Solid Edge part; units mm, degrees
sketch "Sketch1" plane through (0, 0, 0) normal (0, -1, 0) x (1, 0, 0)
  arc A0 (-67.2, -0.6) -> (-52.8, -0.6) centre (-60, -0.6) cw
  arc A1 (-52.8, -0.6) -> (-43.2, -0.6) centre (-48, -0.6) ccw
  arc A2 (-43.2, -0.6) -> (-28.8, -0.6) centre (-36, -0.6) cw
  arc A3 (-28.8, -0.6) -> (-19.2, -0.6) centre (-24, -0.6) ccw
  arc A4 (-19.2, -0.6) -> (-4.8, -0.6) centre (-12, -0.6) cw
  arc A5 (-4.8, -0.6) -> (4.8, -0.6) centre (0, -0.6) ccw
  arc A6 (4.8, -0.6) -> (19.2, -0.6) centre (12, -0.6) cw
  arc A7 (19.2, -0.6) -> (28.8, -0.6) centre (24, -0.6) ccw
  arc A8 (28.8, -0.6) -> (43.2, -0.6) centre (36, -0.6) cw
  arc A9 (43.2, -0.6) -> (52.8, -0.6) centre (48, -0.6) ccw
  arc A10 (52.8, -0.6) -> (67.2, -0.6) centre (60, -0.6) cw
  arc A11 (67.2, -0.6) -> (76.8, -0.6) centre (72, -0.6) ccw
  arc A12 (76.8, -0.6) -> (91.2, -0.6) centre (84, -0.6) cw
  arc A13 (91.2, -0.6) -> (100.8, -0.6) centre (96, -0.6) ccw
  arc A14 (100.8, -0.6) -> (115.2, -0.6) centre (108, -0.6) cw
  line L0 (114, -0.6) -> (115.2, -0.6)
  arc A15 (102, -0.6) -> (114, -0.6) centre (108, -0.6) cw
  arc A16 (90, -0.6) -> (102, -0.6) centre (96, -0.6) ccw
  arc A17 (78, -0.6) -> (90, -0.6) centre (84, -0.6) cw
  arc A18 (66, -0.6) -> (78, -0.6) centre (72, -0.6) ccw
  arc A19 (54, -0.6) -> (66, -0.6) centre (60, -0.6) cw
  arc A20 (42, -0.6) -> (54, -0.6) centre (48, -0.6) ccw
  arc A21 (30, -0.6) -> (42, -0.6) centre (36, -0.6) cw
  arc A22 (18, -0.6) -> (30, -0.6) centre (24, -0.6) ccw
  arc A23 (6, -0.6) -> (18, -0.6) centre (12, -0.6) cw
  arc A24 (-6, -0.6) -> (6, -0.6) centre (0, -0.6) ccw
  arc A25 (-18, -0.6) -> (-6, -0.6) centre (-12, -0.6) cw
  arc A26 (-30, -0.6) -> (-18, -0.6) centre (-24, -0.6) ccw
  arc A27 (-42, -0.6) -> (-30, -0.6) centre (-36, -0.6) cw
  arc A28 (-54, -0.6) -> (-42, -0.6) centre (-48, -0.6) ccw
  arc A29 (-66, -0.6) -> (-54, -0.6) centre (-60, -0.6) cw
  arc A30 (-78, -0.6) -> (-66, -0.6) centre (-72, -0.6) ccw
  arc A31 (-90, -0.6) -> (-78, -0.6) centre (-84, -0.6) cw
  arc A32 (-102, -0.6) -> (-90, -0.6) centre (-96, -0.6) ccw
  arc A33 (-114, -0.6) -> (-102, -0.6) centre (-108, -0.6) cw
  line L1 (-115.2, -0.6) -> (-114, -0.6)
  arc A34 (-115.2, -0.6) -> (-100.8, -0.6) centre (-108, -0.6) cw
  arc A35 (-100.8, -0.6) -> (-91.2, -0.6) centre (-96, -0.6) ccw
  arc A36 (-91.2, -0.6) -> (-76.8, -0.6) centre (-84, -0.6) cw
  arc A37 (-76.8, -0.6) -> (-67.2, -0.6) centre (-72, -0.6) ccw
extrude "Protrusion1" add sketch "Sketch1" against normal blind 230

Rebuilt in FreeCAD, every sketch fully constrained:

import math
import FreeCAD as App
import Part
import Sketcher
from FreeCAD import Vector
Q = App.Units.Quantity

doc = App.newDocument("Part")
body = doc.addObject("PartDesign::Body", "Body")

# Sketch on XZ plane
sketch1 = body.newObject("Sketcher::SketchObject", "Sketch")
sketch1.AttachmentSupport = (doc.getObject("XZ_Plane"), [""])
sketch1.MapMode = "FlatFace"
sketch1.addGeometry(Part.ArcOfCircle(Part.Circle(Vector(-60, -0.6, 0), Vector(0, 0, 1), 7.2), math.radians(0), math.radians(180)), False)
sketch1.addGeometry(Part.ArcOfCircle(Part.Circle(Vector(-72, -0.6, 0), Vector(0, 0, 1), 4.8), math.radians(180), math.radians(360)), False)
sketch1.addGeometry(Part.ArcOfCircle(Part.Circle(Vector(-84, -0.6, 0), Vector(0, 0, 1), 7.2), math.radians(0), math.radians(180)), False)
sketch1.addGeometry(Part.ArcOfCircle(Part.Circle(Vector(-96, -0.6, 0), Vector(0, 0, 1), 4.8), math.radians(180), math.radians(360)), False)
sketch1.addGeometry(Part.ArcOfCircle(Part.Circle(Vector(-108, -0.6, 0), Vector(0, 0, 1), 7.2), math.radians(0), math.radians(180)), False)
sketch1.addGeometry(Part.LineSegment(Vector(-115.2, -0.6, 0), Vector(-114, -0.6, 0)), False)
sketch1.addGeometry(Part.ArcOfCircle(Part.Circle(Vector(-108, -0.6, 0), Vector(0, 0, 1), 6), math.radians(0), math.radians(180)), False)
sketch1.addGeometry(Part.ArcOfCircle(Part.Circle(Vector(-96, -0.6, 0), Vector(0, 0, 1), 6), math.radians(180), math.radians(360)), False)
sketch1.addGeometry(Part.ArcOfCircle(Part.Circle(Vector(-84, -0.6, 0), Vector(0, 0, 1), 6), math.radians(0), math.radians(180)), False)
sketch1.addGeometry(Part.ArcOfCircle(Part.Circle(Vector(-72, -0.6, 0), Vector(0, 0, 1), 6), math.radians(180), math.radians(360)), False)
sketch1.addGeometry(Part.ArcOfCircle(Part.Circle(Vector(-60, -0.6, 0), Vector(0, 0, 1), 6), math.radians(0), math.radians(180)), False)
sketch1.addGeometry(Part.ArcOfCircle(Part.Circle(Vector(-48, -0.6, 0), Vector(0, 0, 1), 6), math.radians(180), math.radians(360)), False)
sketch1.addGeometry(Part.ArcOfCircle(Part.Circle(Vector(-36, -0.6, 0), Vector(0, 0, 1), 6), math.radians(0), math.radians(180)), False)
sketch1.addGeometry(Part.ArcOfCircle(Part.Circle(Vector(-24, -0.6, 0), Vector(0, 0, 1), 6), math.radians(180), math.radians(360)), False)
sketch1.addGeometry(Part.ArcOfCircle(Part.Circle(Vector(-12, -0.6, 0), Vector(0, 0, 1), 6), math.radians(0), math.radians(180)), False)
sketch1.addGeometry(Part.ArcOfCircle(Part.Circle(Vector(0, -0.6, 0), Vector(0, 0, 1), 6), math.radians(180), math.radians(360)), False)
sketch1.addGeometry(Part.ArcOfCircle(Part.Circle(Vector(12, -0.6, 0), Vector(0, 0, 1), 6), math.radians(0), math.radians(180)), False)
sketch1.addGeometry(Part.ArcOfCircle(Part.Circle(Vector(24, -0.6, 0), Vector(0, 0, 1), 6), math.radians(180), math.radians(360)), False)
sketch1.addGeometry(Part.ArcOfCircle(Part.Circle(Vector(36, -0.6, 0), Vector(0, 0, 1), 6), math.radians(0), math.radians(180)), False)
sketch1.addGeometry(Part.ArcOfCircle(Part.Circle(Vector(48, -0.6, 0), Vector(0, 0, 1), 6), math.radians(180), math.radians(360)), False)
sketch1.addGeometry(Part.ArcOfCircle(Part.Circle(Vector(60, -0.6, 0), Vector(0, 0, 1), 6), math.radians(0), math.radians(180)), False)
sketch1.addGeometry(Part.ArcOfCircle(Part.Circle(Vector(72, -0.6, 0), Vector(0, 0, 1), 6), math.radians(180), math.radians(360)), False)
sketch1.addGeometry(Part.ArcOfCircle(Part.Circle(Vector(84, -0.6, 0), Vector(0, 0, 1), 6), math.radians(0), math.radians(180)), False)
sketch1.addGeometry(Part.ArcOfCircle(Part.Circle(Vector(96, -0.6, 0), Vector(0, 0, 1), 6), math.radians(180), math.radians(360)), False)
sketch1.addGeometry(Part.ArcOfCircle(Part.Circle(Vector(108, -0.6, 0), Vector(0, 0, 1), 6), math.radians(0), math.radians(180)), False)
sketch1.addGeometry(Part.LineSegment(Vector(114, -0.6, 0), Vector(115.2, -0.6, 0)), False)
sketch1.addGeometry(Part.ArcOfCircle(Part.Circle(Vector(108, -0.6, 0), Vector(0, 0, 1), 7.2), math.radians(0), math.radians(180)), False)
sketch1.addGeometry(Part.ArcOfCircle(Part.Circle(Vector(96, -0.6, 0), Vector(0, 0, 1), 4.8), math.radians(180), math.radians(360)), False)
sketch1.addGeometry(Part.ArcOfCircle(Part.Circle(Vector(84, -0.6, 0), Vector(0, 0, 1), 7.2), math.radians(0), math.radians(180)), False)
sketch1.addGeometry(Part.ArcOfCircle(Part.Circle(Vector(72, -0.6, 0), Vector(0, 0, 1), 4.8), math.radians(180), math.radians(360)), False)
sketch1.addGeometry(Part.ArcOfCircle(Part.Circle(Vector(60, -0.6, 0), Vector(0, 0, 1), 7.2), math.radians(0), math.radians(180)), False)
sketch1.addGeometry(Part.ArcOfCircle(Part.Circle(Vector(48, -0.6, 0), Vector(0, 0, 1), 4.8), math.radians(180), math.radians(360)), False)
sketch1.addGeometry(Part.ArcOfCircle(Part.Circle(Vector(36, -0.6, 0), Vector(0, 0, 1), 7.2), math.radians(0), math.radians(180)), False)
sketch1.addGeometry(Part.ArcOfCircle(Part.Circle(Vector(24, -0.6, 0), Vector(0, 0, 1), 4.8), math.radians(180), math.radians(360)), False)
sketch1.addGeometry(Part.ArcOfCircle(Part.Circle(Vector(12, -0.6, 0), Vector(0, 0, 1), 7.2), math.radians(0), math.radians(180)), False)
sketch1.addGeometry(Part.ArcOfCircle(Part.Circle(Vector(0, -0.6, 0), Vector(0, 0, 1), 4.8), math.radians(180), math.radians(360)), False)
sketch1.addGeometry(Part.ArcOfCircle(Part.Circle(Vector(-12, -0.6, 0), Vector(0, 0, 1), 7.2), math.radians(0), math.radians(180)), False)
sketch1.addGeometry(Part.ArcOfCircle(Part.Circle(Vector(-24, -0.6, 0), Vector(0, 0, 1), 4.8), math.radians(180), math.radians(360)), False)
sketch1.addGeometry(Part.ArcOfCircle(Part.Circle(Vector(-36, -0.6, 0), Vector(0, 0, 1), 7.2), math.radians(0), math.radians(180)), False)
sketch1.addGeometry(Part.ArcOfCircle(Part.Circle(Vector(-48, -0.6, 0), Vector(0, 0, 1), 4.8), math.radians(180), math.radians(360)), False)
sketch1.addConstraint(Sketcher.Constraint("Tangent", 0, 2, 1, 2))
sketch1.addConstraint(Sketcher.Constraint("Tangent", 1, 1, 2, 1))
sketch1.addConstraint(Sketcher.Constraint("Tangent", 2, 2, 3, 2))
sketch1.addConstraint(Sketcher.Constraint("Tangent", 3, 1, 4, 1))
sketch1.addConstraint(Sketcher.Constraint("Coincident", 4, 2, 5, 1))
sketch1.addConstraint(Sketcher.Constraint("Coincident", 5, 2, 6, 2))
sketch1.addConstraint(Sketcher.Constraint("Tangent", 6, 1, 7, 1))
sketch1.addConstraint(Sketcher.Constraint("Tangent", 7, 2, 8, 2))
sketch1.addConstraint(Sketcher.Constraint("Tangent", 8, 1, 9, 1))
sketch1.addConstraint(Sketcher.Constraint("Tangent", 9, 2, 10, 2))
sketch1.addConstraint(Sketcher.Constraint("Tangent", 10, 1, 11, 1))
sketch1.addConstraint(Sketcher.Constraint("Tangent", 11, 2, 12, 2))
sketch1.addConstraint(Sketcher.Constraint("Tangent", 12, 1, 13, 1))
sketch1.addConstraint(Sketcher.Constraint("Tangent", 13, 2, 14, 2))
sketch1.addConstraint(Sketcher.Constraint("Tangent", 14, 1, 15, 1))
sketch1.addConstraint(Sketcher.Constraint("Tangent", 15, 2, 16, 2))
sketch1.addConstraint(Sketcher.Constraint("Tangent", 16, 1, 17, 1))
sketch1.addConstraint(Sketcher.Constraint("Tangent", 17, 2, 18, 2))
sketch1.addConstraint(Sketcher.Constraint("Tangent", 18, 1, 19, 1))
sketch1.addConstraint(Sketcher.Constraint("Tangent", 19, 2, 20, 2))
sketch1.addConstraint(Sketcher.Constraint("Tangent", 20, 1, 21, 1))
sketch1.addConstraint(Sketcher.Constraint("Tangent", 21, 2, 22, 2))
sketch1.addConstraint(Sketcher.Constraint("Tangent", 22, 1, 23, 1))
sketch1.addConstraint(Sketcher.Constraint("Tangent", 23, 2, 24, 2))
sketch1.addConstraint(Sketcher.Constraint("Coincident", 24, 1, 25, 1))
sketch1.addConstraint(Sketcher.Constraint("Coincident", 25, 2, 26, 1))
sketch1.addConstraint(Sketcher.Constraint("Tangent", 26, 2, 27, 2))
sketch1.addConstraint(Sketcher.Constraint("Tangent", 27, 1, 28, 1))
sketch1.addConstraint(Sketcher.Constraint("Tangent", 28, 2, 29, 2))
sketch1.addConstraint(Sketcher.Constraint("Tangent", 29, 1, 30, 1))
sketch1.addConstraint(Sketcher.Constraint("Tangent", 30, 2, 31, 2))
sketch1.addConstraint(Sketcher.Constraint("Tangent", 31, 1, 32, 1))
sketch1.addConstraint(Sketcher.Constraint("Tangent", 32, 2, 33, 2))
sketch1.addConstraint(Sketcher.Constraint("Tangent", 33, 1, 34, 1))
sketch1.addConstraint(Sketcher.Constraint("Tangent", 34, 2, 35, 2))
sketch1.addConstraint(Sketcher.Constraint("Tangent", 35, 1, 36, 1))
sketch1.addConstraint(Sketcher.Constraint("Tangent", 36, 2, 37, 2))
sketch1.addConstraint(Sketcher.Constraint("Tangent", 37, 1, 38, 1))
sketch1.addConstraint(Sketcher.Constraint("Tangent", 38, 2, 39, 2))
sketch1.addConstraint(Sketcher.Constraint("Tangent", 39, 1, 0, 1))
sketch1.addConstraint(Sketcher.Constraint("Horizontal", 5))
sketch1.addConstraint(Sketcher.Constraint("Horizontal", 25))
sketch1.addConstraint(Sketcher.Constraint("Coincident", 6, 3, 4, 3))
sketch1.addConstraint(Sketcher.Constraint("Coincident", 7, 3, 3, 3))
sketch1.addConstraint(Sketcher.Constraint("Coincident", 8, 3, 2, 3))
sketch1.addConstraint(Sketcher.Constraint("Coincident", 9, 3, 1, 3))
sketch1.addConstraint(Sketcher.Constraint("Coincident", 10, 3, 0, 3))
sketch1.addConstraint(Sketcher.Constraint("Coincident", 26, 3, 24, 3))
sketch1.addConstraint(Sketcher.Constraint("Coincident", 27, 3, 23, 3))
sketch1.addConstraint(Sketcher.Constraint("Coincident", 28, 3, 22, 3))
sketch1.addConstraint(Sketcher.Constraint("Coincident", 29, 3, 21, 3))
sketch1.addConstraint(Sketcher.Constraint("Coincident", 30, 3, 20, 3))
sketch1.addConstraint(Sketcher.Constraint("Coincident", 31, 3, 19, 3))
sketch1.addConstraint(Sketcher.Constraint("Coincident", 32, 3, 18, 3))
sketch1.addConstraint(Sketcher.Constraint("Coincident", 33, 3, 17, 3))
sketch1.addConstraint(Sketcher.Constraint("Coincident", 34, 3, 16, 3))
sketch1.addConstraint(Sketcher.Constraint("Coincident", 35, 3, 15, 3))
sketch1.addConstraint(Sketcher.Constraint("Coincident", 36, 3, 14, 3))
sketch1.addConstraint(Sketcher.Constraint("Coincident", 37, 3, 13, 3))
sketch1.addConstraint(Sketcher.Constraint("Coincident", 38, 3, 12, 3))
sketch1.addConstraint(Sketcher.Constraint("Coincident", 39, 3, 11, 3))
sketch1.addConstraint(Sketcher.Constraint("Equal", 0, 2))
sketch1.addConstraint(Sketcher.Constraint("Equal", 1, 3))
sketch1.addConstraint(Sketcher.Constraint("Equal", 2, 4))
sketch1.addConstraint(Sketcher.Constraint("Equal", 6, 7))
sketch1.addConstraint(Sketcher.Constraint("Equal", 10, 11))
sketch1.addConstraint(Sketcher.Constraint("Equal", 11, 12))
sketch1.addConstraint(Sketcher.Constraint("Equal", 12, 13))
sketch1.addConstraint(Sketcher.Constraint("Equal", 13, 14))
sketch1.addConstraint(Sketcher.Constraint("Equal", 14, 15))
sketch1.addConstraint(Sketcher.Constraint("Equal", 15, 16))
sketch1.addConstraint(Sketcher.Constraint("Equal", 16, 17))
sketch1.addConstraint(Sketcher.Constraint("Equal", 17, 18))
sketch1.addConstraint(Sketcher.Constraint("Equal", 18, 19))
sketch1.addConstraint(Sketcher.Constraint("Equal", 19, 20))
sketch1.addConstraint(Sketcher.Constraint("Equal", 20, 21))
sketch1.addConstraint(Sketcher.Constraint("Equal", 21, 22))
sketch1.addConstraint(Sketcher.Constraint("Equal", 22, 23))
sketch1.addConstraint(Sketcher.Constraint("Equal", 23, 24))
sketch1.addConstraint(Sketcher.Constraint("Symmetric", 14, 3, 16, 3, -2))
sketch1.addConstraint(Sketcher.Constraint("Horizontal", 0, 3, 1, 3))
sketch1.addConstraint(Sketcher.Constraint("Horizontal", 1, 3, 2, 3))
sketch1.addConstraint(Sketcher.Constraint("Horizontal", 2, 3, 3, 3))
sketch1.addConstraint(Sketcher.Constraint("Horizontal", 3, 3, 4, 3))
sketch1.addConstraint(Sketcher.Constraint("Horizontal", 10, 3, 11, 3))
sketch1.addConstraint(Sketcher.Constraint("Horizontal", 11, 3, 12, 3))
sketch1.addConstraint(Sketcher.Constraint("Horizontal", 12, 3, 13, 3))
sketch1.addConstraint(Sketcher.Constraint("Horizontal", 13, 3, 14, 3))
sketch1.addConstraint(Sketcher.Constraint("Horizontal", 14, 3, 15, 3))
sketch1.addConstraint(Sketcher.Constraint("Horizontal", 16, 3, 17, 3))
sketch1.addConstraint(Sketcher.Constraint("Horizontal", 17, 3, 18, 3))
sketch1.addConstraint(Sketcher.Constraint("Horizontal", 18, 3, 19, 3))
sketch1.addConstraint(Sketcher.Constraint("Horizontal", 19, 3, 20, 3))
sketch1.addConstraint(Sketcher.Constraint("Horizontal", 20, 3, 21, 3))
sketch1.addConstraint(Sketcher.Constraint("Horizontal", 21, 3, 22, 3))
sketch1.addConstraint(Sketcher.Constraint("Horizontal", 22, 3, 23, 3))
sketch1.addConstraint(Sketcher.Constraint("Horizontal", 23, 3, 24, 3))
sketch1.addConstraint(Sketcher.Constraint("Horizontal", 3, 1, 4, 2))
sketch1.addConstraint(Sketcher.Constraint("Horizontal", 23, 2, 24, 1))
sketch1.addConstraint(Sketcher.Constraint("Radius", 6, Q("6 mm")))
sketch1.addConstraint(Sketcher.Constraint("Radius", 0, Q("7.2 mm")))
sketch1.addConstraint(Sketcher.Constraint("DistanceY", 0, 3, -1, 1, Q("0.6 mm")))
pad1 = body.newObject("PartDesign::Pad", "Pad")
pad1.Profile = sketch1
pad1.Length = 230
pad1.Reversed = True

doc.recompute()
